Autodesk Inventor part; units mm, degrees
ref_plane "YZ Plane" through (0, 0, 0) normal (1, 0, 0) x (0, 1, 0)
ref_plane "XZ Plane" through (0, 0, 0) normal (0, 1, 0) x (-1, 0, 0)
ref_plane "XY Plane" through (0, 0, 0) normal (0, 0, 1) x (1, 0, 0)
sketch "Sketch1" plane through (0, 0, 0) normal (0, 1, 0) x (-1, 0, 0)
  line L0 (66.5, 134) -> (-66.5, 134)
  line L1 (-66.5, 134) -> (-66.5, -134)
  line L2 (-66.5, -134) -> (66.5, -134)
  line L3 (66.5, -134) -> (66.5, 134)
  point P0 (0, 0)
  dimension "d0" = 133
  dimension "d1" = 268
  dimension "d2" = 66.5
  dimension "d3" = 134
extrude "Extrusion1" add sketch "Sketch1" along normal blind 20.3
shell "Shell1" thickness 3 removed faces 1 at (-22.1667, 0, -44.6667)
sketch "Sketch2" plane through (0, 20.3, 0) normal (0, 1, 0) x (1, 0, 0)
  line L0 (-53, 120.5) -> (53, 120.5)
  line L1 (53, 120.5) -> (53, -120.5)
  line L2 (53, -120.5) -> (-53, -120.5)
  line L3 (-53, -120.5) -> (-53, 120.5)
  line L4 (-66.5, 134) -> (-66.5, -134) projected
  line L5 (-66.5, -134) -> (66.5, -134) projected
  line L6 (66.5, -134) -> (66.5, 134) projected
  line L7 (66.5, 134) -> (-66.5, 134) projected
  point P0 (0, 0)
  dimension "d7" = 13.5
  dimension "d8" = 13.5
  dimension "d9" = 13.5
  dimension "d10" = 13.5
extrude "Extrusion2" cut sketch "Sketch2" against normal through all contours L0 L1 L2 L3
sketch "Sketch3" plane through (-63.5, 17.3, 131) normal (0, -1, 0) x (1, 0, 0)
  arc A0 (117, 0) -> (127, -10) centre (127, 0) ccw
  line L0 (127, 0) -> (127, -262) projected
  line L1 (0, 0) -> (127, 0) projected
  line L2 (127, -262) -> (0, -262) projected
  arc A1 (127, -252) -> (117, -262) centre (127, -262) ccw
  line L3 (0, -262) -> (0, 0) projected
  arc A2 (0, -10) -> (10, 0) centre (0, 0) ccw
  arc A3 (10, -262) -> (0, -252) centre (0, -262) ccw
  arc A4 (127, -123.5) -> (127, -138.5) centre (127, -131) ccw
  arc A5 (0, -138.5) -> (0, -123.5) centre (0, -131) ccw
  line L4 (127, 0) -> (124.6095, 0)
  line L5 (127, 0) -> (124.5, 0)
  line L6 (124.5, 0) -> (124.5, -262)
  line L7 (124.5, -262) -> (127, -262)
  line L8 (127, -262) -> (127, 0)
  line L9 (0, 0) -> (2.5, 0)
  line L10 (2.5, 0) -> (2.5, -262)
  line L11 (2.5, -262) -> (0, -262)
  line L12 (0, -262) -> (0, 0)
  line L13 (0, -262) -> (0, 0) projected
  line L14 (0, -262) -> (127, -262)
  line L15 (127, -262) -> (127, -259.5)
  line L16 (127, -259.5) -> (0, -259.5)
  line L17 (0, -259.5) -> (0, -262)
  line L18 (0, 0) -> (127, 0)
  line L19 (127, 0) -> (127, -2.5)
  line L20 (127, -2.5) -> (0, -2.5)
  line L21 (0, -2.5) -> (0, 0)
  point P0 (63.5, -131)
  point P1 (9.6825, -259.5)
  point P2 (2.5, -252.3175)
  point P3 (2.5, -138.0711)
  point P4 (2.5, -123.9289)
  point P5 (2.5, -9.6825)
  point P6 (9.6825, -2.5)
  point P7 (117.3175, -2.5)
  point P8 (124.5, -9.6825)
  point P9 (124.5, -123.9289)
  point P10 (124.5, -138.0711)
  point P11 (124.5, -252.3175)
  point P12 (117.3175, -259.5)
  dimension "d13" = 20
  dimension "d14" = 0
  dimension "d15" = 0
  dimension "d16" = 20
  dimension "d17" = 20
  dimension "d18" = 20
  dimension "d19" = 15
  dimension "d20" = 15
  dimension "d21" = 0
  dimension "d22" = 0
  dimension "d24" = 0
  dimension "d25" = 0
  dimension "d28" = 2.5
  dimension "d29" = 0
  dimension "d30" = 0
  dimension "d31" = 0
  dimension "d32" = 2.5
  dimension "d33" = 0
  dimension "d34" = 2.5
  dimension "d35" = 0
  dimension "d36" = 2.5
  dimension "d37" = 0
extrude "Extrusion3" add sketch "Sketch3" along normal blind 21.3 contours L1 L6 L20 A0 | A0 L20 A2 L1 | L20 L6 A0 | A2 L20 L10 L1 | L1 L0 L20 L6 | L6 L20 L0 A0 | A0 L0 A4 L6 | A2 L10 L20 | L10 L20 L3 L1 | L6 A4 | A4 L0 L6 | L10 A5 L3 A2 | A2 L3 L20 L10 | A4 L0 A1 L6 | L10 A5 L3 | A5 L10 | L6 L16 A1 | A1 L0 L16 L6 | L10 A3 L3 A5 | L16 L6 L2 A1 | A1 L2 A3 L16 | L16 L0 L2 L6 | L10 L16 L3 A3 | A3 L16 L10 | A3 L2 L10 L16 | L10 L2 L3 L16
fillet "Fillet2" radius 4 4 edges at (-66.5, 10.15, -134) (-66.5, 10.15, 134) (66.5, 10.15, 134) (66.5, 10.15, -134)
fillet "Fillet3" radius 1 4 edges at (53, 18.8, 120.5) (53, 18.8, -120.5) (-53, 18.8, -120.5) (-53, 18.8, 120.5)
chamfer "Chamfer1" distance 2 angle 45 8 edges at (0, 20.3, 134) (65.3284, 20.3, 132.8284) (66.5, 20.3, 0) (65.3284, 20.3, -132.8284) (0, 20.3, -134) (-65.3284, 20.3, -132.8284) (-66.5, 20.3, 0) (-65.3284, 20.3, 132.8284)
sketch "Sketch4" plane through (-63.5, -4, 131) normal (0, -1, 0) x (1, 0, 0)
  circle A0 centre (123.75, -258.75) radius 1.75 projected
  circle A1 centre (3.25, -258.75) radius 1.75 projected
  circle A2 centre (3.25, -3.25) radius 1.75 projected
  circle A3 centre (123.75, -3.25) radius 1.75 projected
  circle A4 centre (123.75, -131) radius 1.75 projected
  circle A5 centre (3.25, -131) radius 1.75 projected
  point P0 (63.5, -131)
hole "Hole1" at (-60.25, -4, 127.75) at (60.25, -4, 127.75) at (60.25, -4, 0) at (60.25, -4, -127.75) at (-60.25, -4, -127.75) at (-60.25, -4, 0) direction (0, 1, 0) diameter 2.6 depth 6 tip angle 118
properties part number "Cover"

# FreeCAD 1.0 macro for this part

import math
import FreeCAD as App
import Part
import Sketcher

V = App.Vector
Q = App.Units.Quantity


def edges_at(feature, points):
    """Names of the edges that pass closest to the given points."""
    edges = feature.Shape.Edges
    near = lambda p: min(range(len(edges)), key=lambda i: edges[i].distToShape(Part.Vertex(*p))[0])
    return sorted({f"Edge{near(p) + 1}" for p in points})


def faces_at(feature, points):
    """Names of the faces that lie closest to the given points."""
    faces = feature.Shape.Faces
    near = lambda p: min(range(len(faces)), key=lambda i: faces[i].distToShape(Part.Vertex(*p))[0])
    return sorted({f"Face{near(p) + 1}" for p in points})

doc = App.newDocument("Part")
body = doc.addObject("PartDesign::Body", "Body")

# Sketch on XZ plane
sketch1 = body.newObject("Sketcher::SketchObject", "Sketch")
sketch1.AttachmentSupport = (doc.getObject("XZ_Plane"), [""])
sketch1.MapMode = "FlatFace"
sketch1.addGeometry([
    Part.LineSegment(V(-66, -134, 0), V(-66, 134, 0)),
    Part.LineSegment(V(-66, 134, 0), V(66, 134, 0)),
    Part.LineSegment(V(66, 134, 0), V(66, -134, 0)),
    Part.LineSegment(V(66, -134, 0), V(-66, -134, 0)),
], False)
sketch1.addConstraint([
    Sketcher.Constraint("Coincident", 0, 2, 1, 1),
    Sketcher.Constraint("Coincident", 1, 2, 2, 1),
    Sketcher.Constraint("Coincident", 2, 2, 3, 1),
    Sketcher.Constraint("Coincident", 3, 2, 0, 1),
    Sketcher.Constraint("Vertical", 0),
    Sketcher.Constraint("Horizontal", 1),
    Sketcher.Constraint("Vertical", 2),
    Sketcher.Constraint("Horizontal", 3),
    Sketcher.Constraint("Symmetric", 0, 2, 2, 2, -1, 1),
    Sketcher.Constraint("DistanceX", 1, 1, 1, 2, Q("133 mm")),
    Sketcher.Constraint("DistanceY", 0, 1, 0, 2, Q("268 mm")),
])
pad1 = body.newObject("PartDesign::Pad", "Pad")
pad1.Profile = sketch1
pad1.Length = 20.3
pad1.Reversed = True
doc.recompute()

thickness = body.newObject("PartDesign::Thickness", "Thickness")
thickness.Base = (pad1, faces_at(pad1, [(-22.167, 0, -44.667)]))
thickness.Value = 3
thickness.Reversed = True
thickness.Join = "Intersection"

# Sketch on XZ plane
sketch2 = body.newObject("Sketcher::SketchObject", "Sketch001")
sketch2.AttachmentSupport = (doc.getObject("XZ_Plane"), [""])
sketch2.MapMode = "FlatFace"
sketch2.AttachmentOffset = App.Placement(V(0, 0, -20.3), App.Rotation())
sketch2.addGeometry([
    Part.LineSegment(V(53, -120, 0), V(-53, -120, 0)),
    Part.LineSegment(V(-53, -120, 0), V(-53, 120, 0)),
    Part.LineSegment(V(-53, 120, 0), V(53, 120, 0)),
    Part.LineSegment(V(53, 120, 0), V(53, -120, 0)),
], False)
sketch2.addConstraint([
    Sketcher.Constraint("Coincident", 0, 2, 1, 1),
    Sketcher.Constraint("Coincident", 1, 2, 2, 1),
    Sketcher.Constraint("Coincident", 2, 2, 3, 1),
    Sketcher.Constraint("Coincident", 3, 2, 0, 1),
    Sketcher.Constraint("Horizontal", 0),
    Sketcher.Constraint("Vertical", 1),
    Sketcher.Constraint("Horizontal", 2),
    Sketcher.Constraint("Vertical", 3),
    Sketcher.Constraint("Symmetric", 0, 2, 2, 2, -1, 1),
    Sketcher.Constraint("DistanceX", 0, 2, 0, 1, Q("106 mm")),
    Sketcher.Constraint("DistanceY", 1, 1, 1, 2, Q("241 mm")),
])
pocket1 = body.newObject("PartDesign::Pocket", "Pocket")
pocket1.Profile = sketch2
pocket1.Type = "ThroughAll"
pocket1.Reversed = True

# Sketch on XZ plane
sketch3 = body.newObject("Sketcher::SketchObject", "Sketch002")
sketch3.AttachmentSupport = (doc.getObject("XZ_Plane"), [""])
sketch3.MapMode = "FlatFace"
sketch3.AttachmentOffset = App.Placement(V(0, 0, -17.3), App.Rotation())
sketch3.addGeometry([
    Part.LineSegment(V(-64, 131, 0), V(-64, -131, 0)),  # 0
    Part.LineSegment(V(-64, -131, 0), V(64, -131, 0)),  # 1
    Part.LineSegment(V(64, -131, 0), V(64, 131, 0)),  # 2
    Part.LineSegment(V(64, 131, 0), V(-64, 131, 0)),  # 3
    Part.ArcOfCircle(Part.Circle(V(64, 131, 0), V(0, 0, 1), 10), math.radians(-166), math.radians(-104)),  # 4
    Part.LineSegment(V(61, 121, 0), V(61, 7, 0)),  # 5
    Part.ArcOfCircle(Part.Circle(V(64, 0, 0), V(0, 0, 1), 8), math.radians(109), math.radians(251)),  # 6
    Part.LineSegment(V(61, -7, 0), V(61, -121, 0)),  # 7
    Part.ArcOfCircle(Part.Circle(V(64, -131, 0), V(0, 0, 1), 10), math.radians(104), math.radians(166)),  # 8
    Part.LineSegment(V(54, -128, 0), V(-54, -128, 0)),  # 9
    Part.ArcOfCircle(Part.Circle(V(-64, -131, 0), V(0, 0, 1), 10), math.radians(14), math.radians(76)),  # 10
    Part.LineSegment(V(-61, -121, 0), V(-61, -7, 0)),  # 11
    Part.ArcOfCircle(Part.Circle(V(-64, 0, 0), V(0, 0, 1), 8), math.radians(-71), math.radians(71)),  # 12
    Part.LineSegment(V(-61, 7, 0), V(-61, 121, 0)),  # 13
    Part.ArcOfCircle(Part.Circle(V(-64, 131, 0), V(0, 0, 1), 10), math.radians(-76), math.radians(-14)),  # 14
    Part.LineSegment(V(-54, 128, 0), V(54, 128, 0)),  # 15
], False)
sketch3.addConstraint([
    Sketcher.Constraint("Coincident", 0, 2, 1, 1),
    Sketcher.Constraint("Coincident", 1, 2, 2, 1),
    Sketcher.Constraint("Coincident", 2, 2, 3, 1),
    Sketcher.Constraint("Coincident", 3, 2, 0, 1),
    Sketcher.Constraint("Coincident", 4, 2, 5, 1),
    Sketcher.Constraint("Coincident", 5, 2, 6, 1),
    Sketcher.Constraint("Coincident", 6, 2, 7, 1),
    Sketcher.Constraint("Coincident", 7, 2, 8, 1),
    Sketcher.Constraint("Coincident", 8, 2, 9, 1),
    Sketcher.Constraint("Coincident", 9, 2, 10, 1),
    Sketcher.Constraint("Coincident", 10, 2, 11, 1),
    Sketcher.Constraint("Coincident", 11, 2, 12, 1),
    Sketcher.Constraint("Coincident", 12, 2, 13, 1),
    Sketcher.Constraint("Coincident", 13, 2, 14, 1),
    Sketcher.Constraint("Coincident", 14, 2, 15, 1),
    Sketcher.Constraint("Coincident", 15, 2, 4, 1),
    Sketcher.Constraint("Vertical", 0),
    Sketcher.Constraint("Horizontal", 1),
    Sketcher.Constraint("Vertical", 2),
    Sketcher.Constraint("Horizontal", 3),
    Sketcher.Constraint("Vertical", 5),
    Sketcher.Constraint("Vertical", 7),
    Sketcher.Constraint("Horizontal", 9),
    Sketcher.Constraint("Vertical", 11),
    Sketcher.Constraint("Vertical", 13),
    Sketcher.Constraint("Horizontal", 15),
    Sketcher.Constraint("Coincident", 0, 2, 10, 3),
    Sketcher.Constraint("Coincident", 1, 2, 8, 3),
    Sketcher.Constraint("Coincident", 2, 2, 4, 3),
    Sketcher.Constraint("Coincident", 3, 2, 14, 3),
    Sketcher.Constraint("Equal", 4, 8),
    Sketcher.Constraint("Equal", 8, 10),
    Sketcher.Constraint("Equal", 6, 12),
    Sketcher.Constraint("Equal", 10, 14),
    Sketcher.Constraint("Symmetric", 4, 3, 10, 3, -1, 1),
    Sketcher.Constraint("Symmetric", 6, 3, 12, 3, -1, 1),
    Sketcher.Constraint("Symmetric", 6, 2, 11, 2, -2),
    Sketcher.Constraint("Horizontal", 5, 2, 12, 2),
    Sketcher.Constraint("Vertical", 4, 3, 6, 3),
    Sketcher.Constraint("Vertical", 5, 2, 6, 2),
    Sketcher.Constraint("Vertical", 9, 2, 14, 2),
    Sketcher.Constraint("Radius", 4, Q("10 mm")),
    Sketcher.Constraint("Radius", 6, Q("7.5 mm")),
    Sketcher.Constraint("DistanceX", 4, 2, 4, 3, Q("2.5 mm")),
    Sketcher.Constraint("DistanceY", 8, 3, 8, 2, Q("2.5 mm")),
    Sketcher.Constraint("DistanceX", 1, 1, 1, 2, Q("127 mm")),
    Sketcher.Constraint("DistanceY", 0, 2, 0, 1, Q("262 mm")),
])
pad2 = body.newObject("PartDesign::Pad", "Pad001")
pad2.Profile = sketch3
pad2.Length = 21.3
doc.recompute()

fillet = body.newObject("PartDesign::Fillet", "Fillet")
fillet.Base = (pad2, edges_at(pad2, [
    (-66.5, 10.15, -134),
    (-66.5, 10.15, 134),
    (66.5, 10.15, 134),
    (66.5, 10.15, -134),
]))
fillet.Radius = 4
doc.recompute()

fillet2 = body.newObject("PartDesign::Fillet", "Fillet001")
fillet2.Base = (fillet, edges_at(fillet, [
    (53, 18.8, 120.5),
    (53, 18.8, -120.5),
    (-53, 18.8, -120.5),
    (-53, 18.8, 120.5),
]))
fillet2.Radius = 1
doc.recompute()

chamfer = body.newObject("PartDesign::Chamfer", "Chamfer")
chamfer.Base = (fillet2, edges_at(fillet2, [
    (0, 20.3, 134),
    (65.328, 20.3, 132.828),
    (66.5, 20.3, 0),
    (65.328, 20.3, -132.828),
    (0, 20.3, -134),
    (-65.328, 20.3, -132.828),
    (-66.5, 20.3, 0),
    (-65.328, 20.3, 132.828),
]))
chamfer.Size = 2

# Sketch on XZ plane
sketch4 = body.newObject("Sketcher::SketchObject", "Sketch003")
sketch4.AttachmentSupport = (doc.getObject("XZ_Plane"), [""])
sketch4.MapMode = "FlatFace"
sketch4.AttachmentOffset = App.Placement(V(0, 0, 4), App.Rotation())
sketch4.addGeometry([
    Part.Circle(V(-60.2, 127.8, 0), V(0, 0, 1), 1.3),  # 0
    Part.Circle(V(60.2, 127.8, 0), V(0, 0, 1), 1.3),  # 1
    Part.Circle(V(60.2, 0, 0), V(0, 0, 1), 1.3),  # 2
    Part.Circle(V(60.2, -127.8, 0), V(0, 0, 1), 1.3),  # 3
    Part.Circle(V(-60.2, -127.8, 0), V(0, 0, 1), 1.3),  # 4
    Part.Circle(V(-60.2, 0, 0), V(0, 0, 1), 1.3),  # 5
], False)
sketch4.addConstraint([
    Sketcher.Constraint("Equal", 0, 1),
    Sketcher.Constraint("Equal", 1, 2),
    Sketcher.Constraint("Equal", 2, 3),
    Sketcher.Constraint("Equal", 3, 4),
    Sketcher.Constraint("Equal", 4, 5),
    Sketcher.Constraint("Symmetric", 0, 3, 3, 3, -1, 1),
    Sketcher.Constraint("Symmetric", 1, 3, 4, 3, -1, 1),
    Sketcher.Constraint("Symmetric", 2, 3, 5, 3, -1, 1),
    Sketcher.Constraint("Symmetric", 0, 3, 1, 3, -2),
    Sketcher.Constraint("PointOnObject", 2, 3, -1),
    Sketcher.Constraint("Vertical", 1, 3, 2, 3),
    Sketcher.Constraint("Diameter", 0, Q("2.6 mm")),
    Sketcher.Constraint("DistanceX", 0, 3, 1, 3, Q("120.5 mm")),
    Sketcher.Constraint("DistanceY", 3, 3, 1, 3, Q("255.5 mm")),
])
doc.recompute()
hole = body.newObject("PartDesign::Hole", "Hole")
hole.Profile = sketch4
hole.ThreadType = "None"
hole.Diameter = 2.6
hole.DepthType = "Dimension"
hole.Depth = 6
hole.DrillPoint = "Angled"
hole.DrillPointAngle = 118

doc.recompute()
